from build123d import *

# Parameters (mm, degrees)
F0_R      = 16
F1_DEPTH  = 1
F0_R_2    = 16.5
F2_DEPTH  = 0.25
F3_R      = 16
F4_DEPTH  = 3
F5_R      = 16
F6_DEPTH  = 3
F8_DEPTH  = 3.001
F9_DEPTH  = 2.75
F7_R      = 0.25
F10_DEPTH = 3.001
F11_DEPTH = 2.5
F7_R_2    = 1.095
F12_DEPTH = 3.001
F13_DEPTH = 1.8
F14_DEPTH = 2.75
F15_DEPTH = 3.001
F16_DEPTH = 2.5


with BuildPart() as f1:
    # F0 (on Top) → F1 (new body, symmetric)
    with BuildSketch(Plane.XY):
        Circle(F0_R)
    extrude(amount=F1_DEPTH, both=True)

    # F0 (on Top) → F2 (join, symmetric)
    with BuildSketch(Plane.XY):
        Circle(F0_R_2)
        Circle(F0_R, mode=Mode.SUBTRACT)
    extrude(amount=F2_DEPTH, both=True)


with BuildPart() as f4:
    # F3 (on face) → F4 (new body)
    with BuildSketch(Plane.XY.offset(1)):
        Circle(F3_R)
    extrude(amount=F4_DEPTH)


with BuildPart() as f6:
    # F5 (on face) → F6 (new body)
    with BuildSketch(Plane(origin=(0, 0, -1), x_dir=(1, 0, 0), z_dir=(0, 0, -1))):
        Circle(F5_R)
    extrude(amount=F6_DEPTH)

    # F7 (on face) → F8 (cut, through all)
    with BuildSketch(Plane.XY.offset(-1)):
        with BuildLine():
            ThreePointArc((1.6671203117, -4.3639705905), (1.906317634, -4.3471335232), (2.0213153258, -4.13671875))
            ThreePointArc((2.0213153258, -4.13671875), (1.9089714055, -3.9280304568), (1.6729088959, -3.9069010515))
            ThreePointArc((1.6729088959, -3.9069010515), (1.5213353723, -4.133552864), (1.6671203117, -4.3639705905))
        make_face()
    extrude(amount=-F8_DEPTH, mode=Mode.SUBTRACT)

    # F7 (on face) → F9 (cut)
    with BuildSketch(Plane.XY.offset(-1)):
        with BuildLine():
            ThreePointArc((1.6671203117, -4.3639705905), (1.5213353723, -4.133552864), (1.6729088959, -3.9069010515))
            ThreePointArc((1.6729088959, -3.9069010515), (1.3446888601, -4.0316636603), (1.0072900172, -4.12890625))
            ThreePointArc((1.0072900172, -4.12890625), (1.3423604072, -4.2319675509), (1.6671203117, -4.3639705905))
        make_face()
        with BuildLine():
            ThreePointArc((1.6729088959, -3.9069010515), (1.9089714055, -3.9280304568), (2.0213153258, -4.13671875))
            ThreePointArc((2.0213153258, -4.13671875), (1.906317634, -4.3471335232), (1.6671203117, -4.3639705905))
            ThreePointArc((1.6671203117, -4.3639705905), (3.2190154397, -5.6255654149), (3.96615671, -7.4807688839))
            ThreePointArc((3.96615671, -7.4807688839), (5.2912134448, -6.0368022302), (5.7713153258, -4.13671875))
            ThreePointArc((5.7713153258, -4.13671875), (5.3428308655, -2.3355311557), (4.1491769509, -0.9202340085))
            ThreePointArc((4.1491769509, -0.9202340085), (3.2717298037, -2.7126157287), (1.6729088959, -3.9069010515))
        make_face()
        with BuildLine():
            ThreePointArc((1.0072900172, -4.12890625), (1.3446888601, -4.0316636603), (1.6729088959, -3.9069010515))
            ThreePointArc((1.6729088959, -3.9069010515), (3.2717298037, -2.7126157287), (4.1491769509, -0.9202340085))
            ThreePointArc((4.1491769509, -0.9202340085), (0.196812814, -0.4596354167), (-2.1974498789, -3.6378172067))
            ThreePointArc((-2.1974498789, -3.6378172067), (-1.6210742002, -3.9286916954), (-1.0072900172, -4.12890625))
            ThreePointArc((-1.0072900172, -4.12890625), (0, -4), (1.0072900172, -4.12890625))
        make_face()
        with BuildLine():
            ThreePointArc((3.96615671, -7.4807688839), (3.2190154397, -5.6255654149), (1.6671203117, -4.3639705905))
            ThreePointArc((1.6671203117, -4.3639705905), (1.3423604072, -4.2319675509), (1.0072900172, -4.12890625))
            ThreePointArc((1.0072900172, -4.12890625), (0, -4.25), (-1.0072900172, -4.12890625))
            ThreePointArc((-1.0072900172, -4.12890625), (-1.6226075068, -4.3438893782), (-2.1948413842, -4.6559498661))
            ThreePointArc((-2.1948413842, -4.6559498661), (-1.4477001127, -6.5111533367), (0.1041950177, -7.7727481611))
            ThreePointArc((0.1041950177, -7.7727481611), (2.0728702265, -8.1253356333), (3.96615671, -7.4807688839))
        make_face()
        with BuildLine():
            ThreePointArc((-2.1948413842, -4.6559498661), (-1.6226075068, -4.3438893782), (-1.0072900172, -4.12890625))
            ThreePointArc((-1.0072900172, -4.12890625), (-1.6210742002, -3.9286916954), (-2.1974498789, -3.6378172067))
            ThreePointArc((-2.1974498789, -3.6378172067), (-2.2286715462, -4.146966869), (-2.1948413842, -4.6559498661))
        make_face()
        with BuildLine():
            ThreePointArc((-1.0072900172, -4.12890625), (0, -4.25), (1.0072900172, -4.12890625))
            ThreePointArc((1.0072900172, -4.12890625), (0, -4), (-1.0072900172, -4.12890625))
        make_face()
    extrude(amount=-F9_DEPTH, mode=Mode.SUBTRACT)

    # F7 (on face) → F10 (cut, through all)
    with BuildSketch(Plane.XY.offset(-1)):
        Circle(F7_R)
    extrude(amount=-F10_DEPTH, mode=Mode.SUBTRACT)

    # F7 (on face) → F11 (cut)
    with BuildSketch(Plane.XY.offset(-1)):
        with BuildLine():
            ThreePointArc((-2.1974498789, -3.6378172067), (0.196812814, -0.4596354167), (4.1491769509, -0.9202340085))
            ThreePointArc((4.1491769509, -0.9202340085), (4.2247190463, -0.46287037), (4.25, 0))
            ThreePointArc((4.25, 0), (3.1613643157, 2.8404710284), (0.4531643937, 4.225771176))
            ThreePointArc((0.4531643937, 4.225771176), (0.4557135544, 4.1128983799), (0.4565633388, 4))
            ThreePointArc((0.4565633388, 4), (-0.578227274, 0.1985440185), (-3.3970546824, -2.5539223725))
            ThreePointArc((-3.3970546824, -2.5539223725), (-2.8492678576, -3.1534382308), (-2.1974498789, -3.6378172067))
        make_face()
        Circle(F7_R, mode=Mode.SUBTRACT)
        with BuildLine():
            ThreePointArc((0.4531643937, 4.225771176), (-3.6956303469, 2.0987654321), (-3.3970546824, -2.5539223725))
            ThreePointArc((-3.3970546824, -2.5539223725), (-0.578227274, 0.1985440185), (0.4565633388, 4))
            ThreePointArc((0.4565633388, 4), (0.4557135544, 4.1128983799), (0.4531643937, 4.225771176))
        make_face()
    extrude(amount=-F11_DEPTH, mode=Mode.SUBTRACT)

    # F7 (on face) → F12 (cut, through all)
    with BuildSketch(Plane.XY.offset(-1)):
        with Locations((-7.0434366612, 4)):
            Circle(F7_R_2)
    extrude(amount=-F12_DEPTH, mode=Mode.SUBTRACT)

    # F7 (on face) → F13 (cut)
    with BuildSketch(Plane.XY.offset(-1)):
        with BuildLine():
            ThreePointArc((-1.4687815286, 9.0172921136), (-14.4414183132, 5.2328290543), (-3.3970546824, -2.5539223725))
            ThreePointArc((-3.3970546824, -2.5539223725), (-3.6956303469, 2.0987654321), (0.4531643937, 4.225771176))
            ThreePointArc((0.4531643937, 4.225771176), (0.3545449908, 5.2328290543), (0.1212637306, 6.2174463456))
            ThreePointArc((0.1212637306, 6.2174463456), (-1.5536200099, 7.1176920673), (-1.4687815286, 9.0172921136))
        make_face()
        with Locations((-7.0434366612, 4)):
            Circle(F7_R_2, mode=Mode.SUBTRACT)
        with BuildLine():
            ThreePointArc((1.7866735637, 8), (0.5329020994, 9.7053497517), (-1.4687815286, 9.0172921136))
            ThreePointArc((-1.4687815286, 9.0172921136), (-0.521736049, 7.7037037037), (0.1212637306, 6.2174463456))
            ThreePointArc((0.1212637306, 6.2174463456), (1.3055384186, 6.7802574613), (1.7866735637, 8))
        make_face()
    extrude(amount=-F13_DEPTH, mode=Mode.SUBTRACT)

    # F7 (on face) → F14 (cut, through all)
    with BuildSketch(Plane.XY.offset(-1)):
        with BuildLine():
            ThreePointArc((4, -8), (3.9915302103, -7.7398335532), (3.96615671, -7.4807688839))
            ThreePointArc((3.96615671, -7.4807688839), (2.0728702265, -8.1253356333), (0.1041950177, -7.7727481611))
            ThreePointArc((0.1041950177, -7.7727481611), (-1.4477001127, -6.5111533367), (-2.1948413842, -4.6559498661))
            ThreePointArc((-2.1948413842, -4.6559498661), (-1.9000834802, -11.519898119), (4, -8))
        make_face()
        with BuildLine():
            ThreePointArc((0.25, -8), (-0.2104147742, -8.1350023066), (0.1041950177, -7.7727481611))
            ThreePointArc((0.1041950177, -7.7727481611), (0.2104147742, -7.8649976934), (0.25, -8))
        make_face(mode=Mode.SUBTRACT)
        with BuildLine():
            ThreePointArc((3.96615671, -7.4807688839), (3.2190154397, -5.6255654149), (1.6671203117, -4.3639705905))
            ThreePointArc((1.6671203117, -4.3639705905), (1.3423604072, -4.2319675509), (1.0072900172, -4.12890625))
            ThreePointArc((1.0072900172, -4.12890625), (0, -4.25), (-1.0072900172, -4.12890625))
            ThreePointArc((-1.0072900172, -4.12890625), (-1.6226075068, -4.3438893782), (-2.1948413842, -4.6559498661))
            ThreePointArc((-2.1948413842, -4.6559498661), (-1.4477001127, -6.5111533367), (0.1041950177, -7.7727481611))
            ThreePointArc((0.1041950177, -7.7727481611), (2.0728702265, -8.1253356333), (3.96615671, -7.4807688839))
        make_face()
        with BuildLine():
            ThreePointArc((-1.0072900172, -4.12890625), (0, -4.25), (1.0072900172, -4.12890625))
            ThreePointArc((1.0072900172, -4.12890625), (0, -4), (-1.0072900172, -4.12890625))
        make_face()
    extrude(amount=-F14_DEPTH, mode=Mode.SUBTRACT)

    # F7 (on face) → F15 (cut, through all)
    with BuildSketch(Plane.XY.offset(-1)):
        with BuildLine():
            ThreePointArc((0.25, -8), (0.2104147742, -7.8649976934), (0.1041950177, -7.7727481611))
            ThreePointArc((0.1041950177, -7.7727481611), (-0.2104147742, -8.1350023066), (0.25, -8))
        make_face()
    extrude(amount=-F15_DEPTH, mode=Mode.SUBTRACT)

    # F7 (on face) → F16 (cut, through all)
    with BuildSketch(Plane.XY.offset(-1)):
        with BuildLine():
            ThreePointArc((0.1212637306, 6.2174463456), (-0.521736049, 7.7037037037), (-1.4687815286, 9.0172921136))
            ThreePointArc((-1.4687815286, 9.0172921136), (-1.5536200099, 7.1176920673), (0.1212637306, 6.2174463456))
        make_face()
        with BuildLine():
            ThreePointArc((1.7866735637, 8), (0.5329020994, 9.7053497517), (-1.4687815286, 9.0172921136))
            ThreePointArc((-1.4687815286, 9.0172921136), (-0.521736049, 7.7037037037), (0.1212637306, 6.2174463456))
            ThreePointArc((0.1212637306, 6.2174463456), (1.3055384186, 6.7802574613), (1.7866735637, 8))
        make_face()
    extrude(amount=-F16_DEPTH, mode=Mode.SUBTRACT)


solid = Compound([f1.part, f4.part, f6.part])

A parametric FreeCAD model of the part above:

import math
import FreeCAD as App
import Part
import Sketcher

V = App.Vector
Q = App.Units.Quantity

doc = App.newDocument("Part")
body = doc.addObject("PartDesign::Body", "Body")

# Sketch on XY plane
sketch1 = doc.addObject("Sketcher::SketchObject", "Sketch")
body.addObject(sketch1)
sketch1.AttachmentSupport = (doc.XY_Plane, [""])
sketch1.MapMode = "FlatFace"
sketch1.addGeometry(Part.Circle(V(0, 0, 0), V(0, 0, 1), 16), False)
sketch1.addConstraint([
    Sketcher.Constraint("Coincident", 0, 3, -1, 1),
    Sketcher.Constraint("Diameter", 0, Q("32 mm")),
])
pad1 = doc.addObject("PartDesign::Pad", "Pad")
body.addObject(pad1)
pad1.Profile = sketch1
pad1.Length = 2
pad1.Midplane = True

# Sketch on XY plane
sketch2 = doc.addObject("Sketcher::SketchObject", "Sketch001")
body.addObject(sketch2)
sketch2.AttachmentSupport = (doc.XY_Plane, [""])
sketch2.MapMode = "FlatFace"
sketch2.addGeometry([
    Part.Circle(V(0, 0, 0), V(0, 0, 1), 16.5),
    Part.Circle(V(0, 0, 0), V(0, 0, 1), 16),
], False)
sketch2.addConstraint([
    Sketcher.Constraint("Coincident", 0, 3, -1, 1),
    Sketcher.Constraint("Coincident", 1, 3, -1, 1),
    Sketcher.Constraint("Diameter", 0, Q("33 mm")),
    Sketcher.Constraint("Diameter", 1, Q("32 mm")),
])
pad2 = doc.addObject("PartDesign::Pad", "Pad001")
body.addObject(pad2)
pad2.Profile = sketch2
pad2.Length = 0.5
pad2.Midplane = True
body2 = doc.addObject("PartDesign::Body", "Body001")

# Sketch on XY plane
sketch3 = doc.addObject("Sketcher::SketchObject", "Sketch002")
body2.addObject(sketch3)
sketch3.AttachmentSupport = (doc.getObject("XY_Plane001"), [""])
sketch3.MapMode = "FlatFace"
sketch3.AttachmentOffset = App.Placement(V(0, 0, 1), App.Rotation())
sketch3.addGeometry(Part.Circle(V(0, 0, 0), V(0, 0, 1), 16), False)
sketch3.addConstraint([
    Sketcher.Constraint("Coincident", 0, 3, -1, 1),
    Sketcher.Constraint("Diameter", 0, Q("32 mm")),
])
pad3 = doc.addObject("PartDesign::Pad", "Pad002")
body2.addObject(pad3)
pad3.Profile = sketch3
pad3.Length = 3
body3 = doc.addObject("PartDesign::Body", "Body002")

# Sketch on XY plane
sketch4 = doc.addObject("Sketcher::SketchObject", "Sketch003")
body3.addObject(sketch4)
sketch4.AttachmentSupport = (doc.getObject("XY_Plane002"), [""])
sketch4.MapMode = "FlatFace"
sketch4.AttachmentOffset = App.Placement(V(0, 0, -1), App.Rotation())
sketch4.addGeometry(Part.Circle(V(0, 0, 0), V(0, 0, 1), 16), False)
sketch4.addConstraint([
    Sketcher.Constraint("Coincident", 0, 3, -1, 1),
    Sketcher.Constraint("Diameter", 0, Q("32 mm")),
])
pad4 = doc.addObject("PartDesign::Pad", "Pad003")
body3.addObject(pad4)
pad4.Profile = sketch4
pad4.Length = 3
pad4.Reversed = True

# Sketch on XY plane
sketch5 = doc.addObject("Sketcher::SketchObject", "Sketch004")
body3.addObject(sketch5)
sketch5.AttachmentSupport = (doc.getObject("XY_Plane002"), [""])
sketch5.MapMode = "FlatFace"
sketch5.AttachmentOffset = App.Placement(V(0, 0, -1), App.Rotation())
sketch5.addGeometry([
    Part.ArcOfCircle(Part.Circle(V(1.771315, -4.136719, 0), V(0, 0, 1), 0.25), math.radians(-114.631465), math.radians(0)),
    Part.ArcOfCircle(Part.Circle(V(1.771315, -4.136719, 0), V(0, 0, 1), 0.25), math.radians(0), math.radians(113.180291)),
    Part.ArcOfCircle(Part.Circle(V(1.771315, -4.136719, 0), V(0, 0, 1), 0.25), math.radians(113.180291), math.radians(245.368535)),
], False)
sketch5.addConstraint([
    Sketcher.Constraint("Tangent", 0, 2, 1, 1),
    Sketcher.Constraint("Tangent", 1, 2, 2, 1),
    Sketcher.Constraint("Tangent", 2, 2, 0, 1),
    Sketcher.Constraint("Horizontal", 2, 3, 0, 2),
    Sketcher.Constraint("Radius", 0, Q("0.25 mm")),
    Sketcher.Constraint("DistanceY", 1, 2, -1, 1, Q("3.906901 mm")),
    Sketcher.Constraint("DistanceY", 0, 3, -1, 1, Q("4.136719 mm")),
    Sketcher.Constraint("DistanceX", -1, 1, 1, 2, Q("1.672909 mm")),
    Sketcher.Constraint("DistanceX", -1, 1, 2, 2, Q("1.66712 mm")),
])
pocket1 = doc.addObject("PartDesign::Pocket", "Pocket")
body3.addObject(pocket1)
pocket1.Profile = sketch5
pocket1.Type = "ThroughAll"

# Sketch on XY plane
sketch6 = doc.addObject("Sketcher::SketchObject", "Sketch005")
body3.addObject(sketch6)
sketch6.AttachmentSupport = (doc.getObject("XY_Plane002"), [""])
sketch6.MapMode = "FlatFace"
sketch6.AttachmentOffset = App.Placement(V(0, 0, -1), App.Rotation())
sketch6.addGeometry([
    Part.ArcOfCircle(Part.Circle(V(1.771315, -4.136719, 0), V(0, 0, 1), 4), math.radians(53.525468), math.radians(172.835103)),  # 0
    Part.ArcOfCircle(Part.Circle(V(1.771315, -4.136719, 0), V(0, 0, 1), 4), math.radians(172.835103), math.radians(187.458485)),  # 1
    Part.ArcOfCircle(Part.Circle(V(1.771315, -4.136719, 0), V(0, 0, 1), 4), math.radians(-172.541515), math.radians(-114.631467)),  # 2
    Part.ArcOfCircle(Part.Circle(V(1.771315, -4.136719, 0), V(0, 0, 1), 4), math.radians(-114.631467), math.radians(-56.721418)),  # 3
    Part.ArcOfCircle(Part.Circle(V(1.771315, -4.136719, 0), V(0, 0, 1), 4), math.radians(-56.721418), math.radians(0)),  # 4
    Part.ArcOfCircle(Part.Circle(V(1.771315, -4.136719, 0), V(0, 0, 1), 4), math.radians(0), math.radians(53.525468)),  # 5
    Part.ArcOfCircle(Part.Circle(V(1.771315, -4.136719, 0), V(0, 0, 1), 0.25), math.radians(-114.631465), math.radians(0)),  # 6
    Part.ArcOfCircle(Part.Circle(V(1.771315, -4.136719, 0), V(0, 0, 1), 0.25), math.radians(113.180291), math.radians(245.368535)),  # 7
    Part.ArcOfCircle(Part.Circle(V(1.771315, -4.136719, 0), V(0, 0, 1), 0.25), math.radians(0), math.radians(113.180291)),  # 8
], False)
sketch6.addConstraint([
    Sketcher.Constraint("Tangent", 0, 2, 1, 1),
    Sketcher.Constraint("Tangent", 1, 2, 2, 1),
    Sketcher.Constraint("Tangent", 2, 2, 3, 1),
    Sketcher.Constraint("Tangent", 3, 2, 4, 1),
    Sketcher.Constraint("Tangent", 4, 2, 5, 1),
    Sketcher.Constraint("Tangent", 5, 2, 0, 1),
    Sketcher.Constraint("Tangent", 6, 1, 7, 2),
    Sketcher.Constraint("Tangent", 7, 1, 8, 2),
    Sketcher.Constraint("Tangent", 8, 1, 6, 2),
    Sketcher.Constraint("Coincident", 2, 3, 0, 3),
    Sketcher.Constraint("Coincident", 6, 3, 0, 3),
    Sketcher.Constraint("Equal", 2, 3),
    Sketcher.Constraint("Horizontal", 8, 3, 4, 2),
    Sketcher.Constraint("Horizontal", 4, 2, 8, 1),
    Sketcher.Constraint("Radius", 0, Q("4 mm")),
    Sketcher.Constraint("Radius", 6, Q("0.25 mm")),
    Sketcher.Constraint("DistanceY", 7, 1, -1, 1, Q("3.906901 mm")),
    Sketcher.Constraint("DistanceY", 1, 3, 0, 2, Q("0.498902 mm")),
    Sketcher.Constraint("DistanceY", 2, 2, 1, 2, Q("3.116798 mm")),
    Sketcher.Constraint("DistanceY", 0, 3, -1, 1, Q("4.136719 mm")),
    Sketcher.Constraint("DistanceX", 0, 2, -1, 1, Q("2.19745 mm")),
    Sketcher.Constraint("DistanceX", 1, 2, -1, 1, Q("2.194841 mm")),
    Sketcher.Constraint("DistanceY", 3, 2, -1, 1, Q("7.480769 mm")),
    Sketcher.Constraint("DistanceX", -1, 1, 6, 1, Q("1.66712 mm")),
    Sketcher.Constraint("DistanceX", 5, 2, 4, 2, Q("1.622138 mm")),
])
pocket2 = doc.addObject("PartDesign::Pocket", "Pocket001")
body3.addObject(pocket2)
pocket2.Profile = sketch6
pocket2.Length = 2.75

# Sketch on XY plane
sketch7 = doc.addObject("Sketcher::SketchObject", "Sketch006")
body3.addObject(sketch7)
sketch7.AttachmentSupport = (doc.getObject("XY_Plane002"), [""])
sketch7.MapMode = "FlatFace"
sketch7.AttachmentOffset = App.Placement(V(0, 0, -1), App.Rotation())
sketch7.addGeometry(Part.Circle(V(0, 0, 0), V(0, 0, 1), 0.25), False)
sketch7.addConstraint([
    Sketcher.Constraint("Coincident", 0, 3, -1, 1),
    Sketcher.Constraint("Diameter", 0, Q("0.5 mm")),
])
pocket3 = doc.addObject("PartDesign::Pocket", "Pocket002")
body3.addObject(pocket3)
pocket3.Profile = sketch7
pocket3.Type = "ThroughAll"

# Sketch on XY plane
sketch8 = doc.addObject("Sketcher::SketchObject", "Sketch007")
body3.addObject(sketch8)
sketch8.AttachmentSupport = (doc.getObject("XY_Plane002"), [""])
sketch8.MapMode = "FlatFace"
sketch8.AttachmentOffset = App.Placement(V(0, 0, -1), App.Rotation())
sketch8.addGeometry([
    Part.ArcOfCircle(Part.Circle(V(1.771315, -4.136719, 0), V(0, 0, 1), 4), math.radians(53.525469), math.radians(172.835103)),  # 0
    Part.ArcOfCircle(Part.Circle(V(0, 0, 0), V(0, 0, 1), 4.25), math.radians(-12.505049), math.radians(0)),  # 1
    Part.ArcOfCircle(Part.Circle(V(0, 0, 0), V(0, 0, 1), 4.25), math.radians(0), math.radians(83.879092)),  # 2
    Part.ArcOfCircle(Part.Circle(V(0, 0, 0), V(0, 0, 1), 4.25), math.radians(83.879092), math.radians(216.936025)),  # 3
    Part.ArcOfCircle(Part.Circle(V(0, 0, 0), V(0, 0, 1), 4.25), math.radians(-143.063975), math.radians(-121.13438)),  # 4
    Part.Circle(V(0, 0, 0), V(0, 0, 1), 0.25),  # 5
], False)
sketch8.addConstraint([
    Sketcher.Constraint("Coincident", 0, 1, 1, 1),
    Sketcher.Constraint("Tangent", 1, 2, 2, 1),
    Sketcher.Constraint("Tangent", 2, 2, 3, 1),
    Sketcher.Constraint("Tangent", 3, 2, 4, 1),
    Sketcher.Constraint("Coincident", 4, 2, 0, 2),
    Sketcher.Constraint("Coincident", 1, 3, -1, 1),
    Sketcher.Constraint("Coincident", 3, 3, -1, 1),
    Sketcher.Constraint("Coincident", 5, 3, -1, 1),
    Sketcher.Constraint("Equal", 3, 4),
    Sketcher.Constraint("PointOnObject", 1, 2, -1),
    Sketcher.Constraint("Radius", 0, Q("4 mm")),
    Sketcher.Constraint("Diameter", 5, Q("0.5 mm")),
    Sketcher.Constraint("Radius", 1, Q("4.25 mm")),
    Sketcher.Constraint("DistanceY", 0, 3, 4, 2, Q("0.498902 mm")),
    Sketcher.Constraint("DistanceY", 0, 3, -1, 1, Q("4.136719 mm")),
    Sketcher.Constraint("DistanceY", -1, 1, 2, 2, Q("4.225771 mm")),
    Sketcher.Constraint("DistanceX", 3, 2, -1, 1, Q("3.397055 mm")),
])
pocket4 = doc.addObject("PartDesign::Pocket", "Pocket003")
body3.addObject(pocket4)
pocket4.Profile = sketch8
pocket4.Length = 2.5

# Sketch on XY plane
sketch9 = doc.addObject("Sketcher::SketchObject", "Sketch008")
body3.addObject(sketch9)
sketch9.AttachmentSupport = (doc.getObject("XY_Plane002"), [""])
sketch9.MapMode = "FlatFace"
sketch9.AttachmentOffset = App.Placement(V(0, 0, -1), App.Rotation())
sketch9.addGeometry(Part.Circle(V(-7.043437, 4, 0), V(0, 0, 1), 1.095), False)
sketch9.addConstraint([
    Sketcher.Constraint("Diameter", 0, Q("2.19 mm")),
    Sketcher.Constraint("DistanceY", -1, 1, 0, 3, Q("4 mm")),
    Sketcher.Constraint("DistanceX", 0, 3, -1, 1, Q("7.043437 mm")),
])
pocket5 = doc.addObject("PartDesign::Pocket", "Pocket004")
body3.addObject(pocket5)
pocket5.Profile = sketch9
pocket5.Type = "ThroughAll"

# Sketch on XY plane
sketch10 = doc.addObject("Sketcher::SketchObject", "Sketch009")
body3.addObject(sketch10)
sketch10.AttachmentSupport = (doc.getObject("XY_Plane002"), [""])
sketch10.MapMode = "FlatFace"
sketch10.AttachmentOffset = App.Placement(V(0, 0, -1), App.Rotation())
sketch10.addGeometry([
    Part.ArcOfCircle(Part.Circle(V(-7.043437, 4, 0), V(0, 0, 1), 7.5), math.radians(41.987794), math.radians(299.090091)),  # 0
    Part.ArcOfCircle(Part.Circle(V(0, 0, 0), V(0, 0, 1), 4.25), math.radians(83.879092), math.radians(216.936025)),  # 1
    Part.ArcOfCircle(Part.Circle(V(-7.043437, 4, 0), V(0, 0, 1), 7.5), math.radians(1.725025), math.radians(17.197089)),  # 2
    Part.ArcOfCircle(Part.Circle(V(0, 8, 0), V(0, 0, 1), 1.786674), math.radians(145.293157), math.radians(273.891727)),  # 3
    Part.Circle(V(-7.043437, 4, 0), V(0, 0, 1), 1.095),  # 4
    Part.ArcOfCircle(Part.Circle(V(0, 8, 0), V(0, 0, 1), 1.786674), math.radians(0), math.radians(145.293157)),  # 5
    Part.ArcOfCircle(Part.Circle(V(-7.043437, 4, 0), V(0, 0, 1), 7.5), math.radians(17.197089), math.radians(41.987794)),  # 6
    Part.ArcOfCircle(Part.Circle(V(0, 8, 0), V(0, 0, 1), 1.786674), math.radians(-86.108273), math.radians(0)),  # 7
], False)
sketch10.addConstraint([
    Sketcher.Constraint("Coincident", 0, 2, 1, 2),
    Sketcher.Constraint("Coincident", 1, 1, 2, 1),
    Sketcher.Constraint("Coincident", 2, 2, 3, 2),
    Sketcher.Constraint("Coincident", 3, 1, 0, 1),
    Sketcher.Constraint("Coincident", 5, 2, 6, 2),
    Sketcher.Constraint("Coincident", 6, 1, 7, 1),
    Sketcher.Constraint("Tangent", 7, 2, 5, 1),
    Sketcher.Constraint("Coincident", 1, 3, -1, 1),
    Sketcher.Constraint("Coincident", 2, 3, 0, 3),
    Sketcher.Constraint("Coincident", 4, 3, 0, 3),
    Sketcher.Constraint("Coincident", 5, 3, 3, 3),
    Sketcher.Constraint("Coincident", 6, 3, 0, 3),
    Sketcher.Constraint("Coincident", 5, 2, 3, 1),
    Sketcher.Constraint("Coincident", 6, 1, 2, 2),
    Sketcher.Constraint("PointOnObject", 3, 3, -2),
    Sketcher.Constraint("Horizontal", 5, 3, 7, 2),
    Sketcher.Constraint("Radius", 0, Q("7.5 mm")),
    Sketcher.Constraint("Diameter", 4, Q("2.19 mm")),
    Sketcher.Constraint("Radius", 1, Q("4.25 mm")),
    Sketcher.Constraint("DistanceY", -1, 1, 0, 3, Q("4 mm")),
    Sketcher.Constraint("DistanceY", -1, 1, 3, 3, Q("8 mm")),
    Sketcher.Constraint("Radius", 3, Q("1.786674 mm")),
    Sketcher.Constraint("DistanceX", 2, 2, 1, 1, Q("0.331901 mm")),
])
pocket6 = doc.addObject("PartDesign::Pocket", "Pocket005")
body3.addObject(pocket6)
pocket6.Profile = sketch10
pocket6.Length = 1.8

# Sketch on XY plane
sketch11 = doc.addObject("Sketcher::SketchObject", "Sketch010")
body3.addObject(sketch11)
sketch11.AttachmentSupport = (doc.getObject("XY_Plane002"), [""])
sketch11.MapMode = "FlatFace"
sketch11.AttachmentOffset = App.Placement(V(0, 0, -1), App.Rotation())
sketch11.addGeometry([
    Part.ArcOfCircle(Part.Circle(V(0, -8, 0), V(0, 0, 1), 4), math.radians(0), math.radians(7.458485)),  # 0
    Part.ArcOfCircle(Part.Circle(V(0, -8, 0), V(0, 0, 1), 4), math.radians(7.458485), math.radians(65.368533)),  # 1
    Part.ArcOfCircle(Part.Circle(V(0, -8, 0), V(0, 0, 1), 4), math.radians(65.368533), math.radians(75.414615)),  # 2
    Part.ArcOfCircle(Part.Circle(V(0, -8, 0), V(0, 0, 1), 4), math.radians(75.414615), math.radians(104.585385)),  # 3
    Part.ArcOfCircle(Part.Circle(V(0, -8, 0), V(0, 0, 1), 4), math.radians(104.585385), math.radians(123.278582)),  # 4
    Part.ArcOfCircle(Part.Circle(V(0, -8, 0), V(0, 0, 1), 4), math.radians(123.278582), math.radians(360)),  # 5
    Part.ArcOfCircle(Part.Circle(V(0, -8, 0), V(0, 0, 1), 0.25), math.radians(65.368534), math.radians(360)),  # 6
    Part.ArcOfCircle(Part.Circle(V(0, -8, 0), V(0, 0, 1), 0.25), math.radians(0), math.radians(65.368534)),  # 7
], False)
sketch11.addConstraint([
    Sketcher.Constraint("Tangent", 0, 2, 1, 1),
    Sketcher.Constraint("Tangent", 1, 2, 2, 1),
    Sketcher.Constraint("Tangent", 2, 2, 3, 1),
    Sketcher.Constraint("Tangent", 3, 2, 4, 1),
    Sketcher.Constraint("Tangent", 4, 2, 5, 1),
    Sketcher.Constraint("Tangent", 5, 2, 0, 1),
    Sketcher.Constraint("Tangent", 6, 1, 7, 2),
    Sketcher.Constraint("Coincident", 7, 1, 6, 2),
    Sketcher.Constraint("Coincident", 2, 3, 0, 3),
    Sketcher.Constraint("Coincident", 6, 3, 0, 3),
    Sketcher.Constraint("Equal", 2, 3),
    Sketcher.Constraint("Symmetric", 2, 2, 3, 2, -2),
    Sketcher.Constraint("Horizontal", 7, 3, 5, 2),
    Sketcher.Constraint("Horizontal", 5, 2, 7, 1),
    Sketcher.Constraint("Radius", 0, Q("4 mm")),
    Sketcher.Constraint("Radius", 6, Q("0.25 mm")),
    Sketcher.Constraint("DistanceY", 0, 3, -1, 1, Q("8 mm")),
    Sketcher.Constraint("DistanceY", 0, 2, 1, 2, Q("3.116798 mm")),
    Sketcher.Constraint("DistanceY", 0, 2, -1, 1, Q("7.480769 mm")),
    Sketcher.Constraint("DistanceX", -1, 1, 2, 2, Q("1.00729 mm")),
    Sketcher.Constraint("DistanceX", 4, 2, -1, 1, Q("2.194841 mm")),
    Sketcher.Constraint("DistanceY", 6, 1, -1, 1, Q("7.772748 mm")),
])
pocket7 = doc.addObject("PartDesign::Pocket", "Pocket006")
body3.addObject(pocket7)
pocket7.Profile = sketch11
pocket7.Length = 2.75

# Sketch on XY plane
sketch12 = doc.addObject("Sketcher::SketchObject", "Sketch011")
body3.addObject(sketch12)
sketch12.AttachmentSupport = (doc.getObject("XY_Plane002"), [""])
sketch12.MapMode = "FlatFace"
sketch12.AttachmentOffset = App.Placement(V(0, 0, -1), App.Rotation())
sketch12.addGeometry([
    Part.ArcOfCircle(Part.Circle(V(0, -8, 0), V(0, 0, 1), 0.25), math.radians(0), math.radians(65.368534)),
    Part.ArcOfCircle(Part.Circle(V(0, -8, 0), V(0, 0, 1), 0.25), math.radians(65.368534), math.radians(360)),
], False)
sketch12.addConstraint([
    Sketcher.Constraint("Tangent", 0, 1, 1, 2),
    Sketcher.Constraint("Coincident", 1, 1, 0, 2),
    Sketcher.Constraint("PointOnObject", 0, 3, -2),
    Sketcher.Constraint("Horizontal", 1, 3, 0, 1),
    Sketcher.Constraint("Radius", 0, Q("0.25 mm")),
    Sketcher.Constraint("DistanceY", 0, 3, -1, 1, Q("8 mm")),
    Sketcher.Constraint("DistanceY", 1, 1, -1, 1, Q("7.772748 mm")),
])
pocket8 = doc.addObject("PartDesign::Pocket", "Pocket007")
body3.addObject(pocket8)
pocket8.Profile = sketch12
pocket8.Type = "ThroughAll"

# Sketch on XY plane
sketch13 = doc.addObject("Sketcher::SketchObject", "Sketch012")
body3.addObject(sketch13)
sketch13.AttachmentSupport = (doc.getObject("XY_Plane002"), [""])
sketch13.MapMode = "FlatFace"
sketch13.AttachmentOffset = App.Placement(V(0, 0, -1), App.Rotation())
sketch13.addGeometry([
    Part.ArcOfCircle(Part.Circle(V(0, 8, 0), V(0, 0, 1), 1.786674), math.radians(145.293157), math.radians(273.891727)),
    Part.ArcOfCircle(Part.Circle(V(0, 8, 0), V(0, 0, 1), 1.786674), math.radians(-86.108273), math.radians(0)),
    Part.ArcOfCircle(Part.Circle(V(0, 8, 0), V(0, 0, 1), 1.786674), math.radians(0), math.radians(145.293157)),
], False)
sketch13.addConstraint([
    Sketcher.Constraint("Tangent", 0, 2, 1, 1),
    Sketcher.Constraint("Tangent", 1, 2, 2, 1),
    Sketcher.Constraint("Tangent", 2, 2, 0, 1),
    Sketcher.Constraint("PointOnObject", 0, 3, -2),
    Sketcher.Constraint("Horizontal", 2, 3, 1, 2),
    Sketcher.Constraint("DistanceY", -1, 1, 0, 3, Q("8 mm")),
    Sketcher.Constraint("Radius", 0, Q("1.786674 mm")),
    Sketcher.Constraint("DistanceX", 2, 2, -1, 1, Q("1.468782 mm")),
    Sketcher.Constraint("DistanceX", 0, 2, 1, 2, Q("1.66541 mm")),
])
pocket9 = doc.addObject("PartDesign::Pocket", "Pocket008")
body3.addObject(pocket9)
pocket9.Profile = sketch13
pocket9.Length = 2.5

doc.recompute()
